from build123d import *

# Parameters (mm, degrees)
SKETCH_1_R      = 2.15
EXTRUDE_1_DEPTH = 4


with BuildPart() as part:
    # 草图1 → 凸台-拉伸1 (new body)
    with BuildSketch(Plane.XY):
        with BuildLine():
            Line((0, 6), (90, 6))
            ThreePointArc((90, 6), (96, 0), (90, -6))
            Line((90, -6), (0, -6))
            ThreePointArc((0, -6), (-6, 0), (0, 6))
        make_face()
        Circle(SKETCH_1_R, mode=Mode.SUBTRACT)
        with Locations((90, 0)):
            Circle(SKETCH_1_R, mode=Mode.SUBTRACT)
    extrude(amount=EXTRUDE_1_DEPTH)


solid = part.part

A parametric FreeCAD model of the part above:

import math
import FreeCAD as App
import Part
import Sketcher

doc = App.newDocument("Part")
params = doc.addObject("Spreadsheet::Sheet", "Params")
for row, (alias, value) in enumerate([
    ("sketch1_radius", "6 mm"),
    ("sketch1_diameter", "4.3 mm"),
    ("sketch1_width", "90 mm"),
    ("pad1_length", "4 mm"),
], start=1):
    params.set(f"A{row}", alias)
    params.set(f"B{row}", "=" + value)
    params.setAlias(f"B{row}", alias)

body = doc.addObject("PartDesign::Body", "Body")

sketch1 = body.newObject("Sketcher::SketchObject", "Sketch")
sketch1.AttachmentSupport = (doc.getObject("XY_Plane"), [""])
sketch1.MapMode = "FlatFace"
sketch1.addGeometry([
    Part.LineSegment(App.Vector(90, 6, 0), App.Vector(0, 6, 0)),
    Part.ArcOfCircle(Part.Circle(App.Vector(0, 0, 0), App.Vector(0, 0, 1), 6), math.radians(90), math.radians(270)),
    Part.LineSegment(App.Vector(0, -6, 0), App.Vector(90, -6, 0)),
    Part.ArcOfCircle(Part.Circle(App.Vector(90, 0, 0), App.Vector(0, 0, 1), 6), math.radians(-90), math.radians(90)),
    Part.Circle(App.Vector(90, 0, 0), App.Vector(0, 0, 1), 2.1),
    Part.Circle(App.Vector(0, 0, 0), App.Vector(0, 0, 1), 2.1),
], False)
sketch1.addConstraint([
    Sketcher.Constraint("Tangent", 0, 2, 1, 1),
    Sketcher.Constraint("Tangent", 1, 2, 2, 1),
    Sketcher.Constraint("Tangent", 2, 2, 3, 1),
    Sketcher.Constraint("Tangent", 3, 2, 0, 1),
    Sketcher.Constraint("Horizontal", 0),
    Sketcher.Constraint("Horizontal", 2),
    Sketcher.Constraint("Coincident", 1, 3, -1, 1),
    Sketcher.Constraint("Coincident", 5, 3, -1, 1),
    Sketcher.Constraint("Coincident", 4, 3, 3, 3),
    Sketcher.Constraint("Equal", 4, 5),
    Sketcher.Constraint("Radius", 1, 6.0),
    Sketcher.Constraint("Diameter", 4, 4.3),
    Sketcher.Constraint("DistanceX", 0, 2, 0, 1, 90.0),
])
sketch1.setExpression("Constraints[10]", "Params.sketch1_radius")
sketch1.setExpression("Constraints[11]", "Params.sketch1_diameter")
sketch1.setExpression("Constraints[12]", "Params.sketch1_width")
pad1 = body.newObject("PartDesign::Pad", "Pad")
pad1.Profile = sketch1
pad1.setExpression("Length", "Params.pad1_length")

doc.recompute()
